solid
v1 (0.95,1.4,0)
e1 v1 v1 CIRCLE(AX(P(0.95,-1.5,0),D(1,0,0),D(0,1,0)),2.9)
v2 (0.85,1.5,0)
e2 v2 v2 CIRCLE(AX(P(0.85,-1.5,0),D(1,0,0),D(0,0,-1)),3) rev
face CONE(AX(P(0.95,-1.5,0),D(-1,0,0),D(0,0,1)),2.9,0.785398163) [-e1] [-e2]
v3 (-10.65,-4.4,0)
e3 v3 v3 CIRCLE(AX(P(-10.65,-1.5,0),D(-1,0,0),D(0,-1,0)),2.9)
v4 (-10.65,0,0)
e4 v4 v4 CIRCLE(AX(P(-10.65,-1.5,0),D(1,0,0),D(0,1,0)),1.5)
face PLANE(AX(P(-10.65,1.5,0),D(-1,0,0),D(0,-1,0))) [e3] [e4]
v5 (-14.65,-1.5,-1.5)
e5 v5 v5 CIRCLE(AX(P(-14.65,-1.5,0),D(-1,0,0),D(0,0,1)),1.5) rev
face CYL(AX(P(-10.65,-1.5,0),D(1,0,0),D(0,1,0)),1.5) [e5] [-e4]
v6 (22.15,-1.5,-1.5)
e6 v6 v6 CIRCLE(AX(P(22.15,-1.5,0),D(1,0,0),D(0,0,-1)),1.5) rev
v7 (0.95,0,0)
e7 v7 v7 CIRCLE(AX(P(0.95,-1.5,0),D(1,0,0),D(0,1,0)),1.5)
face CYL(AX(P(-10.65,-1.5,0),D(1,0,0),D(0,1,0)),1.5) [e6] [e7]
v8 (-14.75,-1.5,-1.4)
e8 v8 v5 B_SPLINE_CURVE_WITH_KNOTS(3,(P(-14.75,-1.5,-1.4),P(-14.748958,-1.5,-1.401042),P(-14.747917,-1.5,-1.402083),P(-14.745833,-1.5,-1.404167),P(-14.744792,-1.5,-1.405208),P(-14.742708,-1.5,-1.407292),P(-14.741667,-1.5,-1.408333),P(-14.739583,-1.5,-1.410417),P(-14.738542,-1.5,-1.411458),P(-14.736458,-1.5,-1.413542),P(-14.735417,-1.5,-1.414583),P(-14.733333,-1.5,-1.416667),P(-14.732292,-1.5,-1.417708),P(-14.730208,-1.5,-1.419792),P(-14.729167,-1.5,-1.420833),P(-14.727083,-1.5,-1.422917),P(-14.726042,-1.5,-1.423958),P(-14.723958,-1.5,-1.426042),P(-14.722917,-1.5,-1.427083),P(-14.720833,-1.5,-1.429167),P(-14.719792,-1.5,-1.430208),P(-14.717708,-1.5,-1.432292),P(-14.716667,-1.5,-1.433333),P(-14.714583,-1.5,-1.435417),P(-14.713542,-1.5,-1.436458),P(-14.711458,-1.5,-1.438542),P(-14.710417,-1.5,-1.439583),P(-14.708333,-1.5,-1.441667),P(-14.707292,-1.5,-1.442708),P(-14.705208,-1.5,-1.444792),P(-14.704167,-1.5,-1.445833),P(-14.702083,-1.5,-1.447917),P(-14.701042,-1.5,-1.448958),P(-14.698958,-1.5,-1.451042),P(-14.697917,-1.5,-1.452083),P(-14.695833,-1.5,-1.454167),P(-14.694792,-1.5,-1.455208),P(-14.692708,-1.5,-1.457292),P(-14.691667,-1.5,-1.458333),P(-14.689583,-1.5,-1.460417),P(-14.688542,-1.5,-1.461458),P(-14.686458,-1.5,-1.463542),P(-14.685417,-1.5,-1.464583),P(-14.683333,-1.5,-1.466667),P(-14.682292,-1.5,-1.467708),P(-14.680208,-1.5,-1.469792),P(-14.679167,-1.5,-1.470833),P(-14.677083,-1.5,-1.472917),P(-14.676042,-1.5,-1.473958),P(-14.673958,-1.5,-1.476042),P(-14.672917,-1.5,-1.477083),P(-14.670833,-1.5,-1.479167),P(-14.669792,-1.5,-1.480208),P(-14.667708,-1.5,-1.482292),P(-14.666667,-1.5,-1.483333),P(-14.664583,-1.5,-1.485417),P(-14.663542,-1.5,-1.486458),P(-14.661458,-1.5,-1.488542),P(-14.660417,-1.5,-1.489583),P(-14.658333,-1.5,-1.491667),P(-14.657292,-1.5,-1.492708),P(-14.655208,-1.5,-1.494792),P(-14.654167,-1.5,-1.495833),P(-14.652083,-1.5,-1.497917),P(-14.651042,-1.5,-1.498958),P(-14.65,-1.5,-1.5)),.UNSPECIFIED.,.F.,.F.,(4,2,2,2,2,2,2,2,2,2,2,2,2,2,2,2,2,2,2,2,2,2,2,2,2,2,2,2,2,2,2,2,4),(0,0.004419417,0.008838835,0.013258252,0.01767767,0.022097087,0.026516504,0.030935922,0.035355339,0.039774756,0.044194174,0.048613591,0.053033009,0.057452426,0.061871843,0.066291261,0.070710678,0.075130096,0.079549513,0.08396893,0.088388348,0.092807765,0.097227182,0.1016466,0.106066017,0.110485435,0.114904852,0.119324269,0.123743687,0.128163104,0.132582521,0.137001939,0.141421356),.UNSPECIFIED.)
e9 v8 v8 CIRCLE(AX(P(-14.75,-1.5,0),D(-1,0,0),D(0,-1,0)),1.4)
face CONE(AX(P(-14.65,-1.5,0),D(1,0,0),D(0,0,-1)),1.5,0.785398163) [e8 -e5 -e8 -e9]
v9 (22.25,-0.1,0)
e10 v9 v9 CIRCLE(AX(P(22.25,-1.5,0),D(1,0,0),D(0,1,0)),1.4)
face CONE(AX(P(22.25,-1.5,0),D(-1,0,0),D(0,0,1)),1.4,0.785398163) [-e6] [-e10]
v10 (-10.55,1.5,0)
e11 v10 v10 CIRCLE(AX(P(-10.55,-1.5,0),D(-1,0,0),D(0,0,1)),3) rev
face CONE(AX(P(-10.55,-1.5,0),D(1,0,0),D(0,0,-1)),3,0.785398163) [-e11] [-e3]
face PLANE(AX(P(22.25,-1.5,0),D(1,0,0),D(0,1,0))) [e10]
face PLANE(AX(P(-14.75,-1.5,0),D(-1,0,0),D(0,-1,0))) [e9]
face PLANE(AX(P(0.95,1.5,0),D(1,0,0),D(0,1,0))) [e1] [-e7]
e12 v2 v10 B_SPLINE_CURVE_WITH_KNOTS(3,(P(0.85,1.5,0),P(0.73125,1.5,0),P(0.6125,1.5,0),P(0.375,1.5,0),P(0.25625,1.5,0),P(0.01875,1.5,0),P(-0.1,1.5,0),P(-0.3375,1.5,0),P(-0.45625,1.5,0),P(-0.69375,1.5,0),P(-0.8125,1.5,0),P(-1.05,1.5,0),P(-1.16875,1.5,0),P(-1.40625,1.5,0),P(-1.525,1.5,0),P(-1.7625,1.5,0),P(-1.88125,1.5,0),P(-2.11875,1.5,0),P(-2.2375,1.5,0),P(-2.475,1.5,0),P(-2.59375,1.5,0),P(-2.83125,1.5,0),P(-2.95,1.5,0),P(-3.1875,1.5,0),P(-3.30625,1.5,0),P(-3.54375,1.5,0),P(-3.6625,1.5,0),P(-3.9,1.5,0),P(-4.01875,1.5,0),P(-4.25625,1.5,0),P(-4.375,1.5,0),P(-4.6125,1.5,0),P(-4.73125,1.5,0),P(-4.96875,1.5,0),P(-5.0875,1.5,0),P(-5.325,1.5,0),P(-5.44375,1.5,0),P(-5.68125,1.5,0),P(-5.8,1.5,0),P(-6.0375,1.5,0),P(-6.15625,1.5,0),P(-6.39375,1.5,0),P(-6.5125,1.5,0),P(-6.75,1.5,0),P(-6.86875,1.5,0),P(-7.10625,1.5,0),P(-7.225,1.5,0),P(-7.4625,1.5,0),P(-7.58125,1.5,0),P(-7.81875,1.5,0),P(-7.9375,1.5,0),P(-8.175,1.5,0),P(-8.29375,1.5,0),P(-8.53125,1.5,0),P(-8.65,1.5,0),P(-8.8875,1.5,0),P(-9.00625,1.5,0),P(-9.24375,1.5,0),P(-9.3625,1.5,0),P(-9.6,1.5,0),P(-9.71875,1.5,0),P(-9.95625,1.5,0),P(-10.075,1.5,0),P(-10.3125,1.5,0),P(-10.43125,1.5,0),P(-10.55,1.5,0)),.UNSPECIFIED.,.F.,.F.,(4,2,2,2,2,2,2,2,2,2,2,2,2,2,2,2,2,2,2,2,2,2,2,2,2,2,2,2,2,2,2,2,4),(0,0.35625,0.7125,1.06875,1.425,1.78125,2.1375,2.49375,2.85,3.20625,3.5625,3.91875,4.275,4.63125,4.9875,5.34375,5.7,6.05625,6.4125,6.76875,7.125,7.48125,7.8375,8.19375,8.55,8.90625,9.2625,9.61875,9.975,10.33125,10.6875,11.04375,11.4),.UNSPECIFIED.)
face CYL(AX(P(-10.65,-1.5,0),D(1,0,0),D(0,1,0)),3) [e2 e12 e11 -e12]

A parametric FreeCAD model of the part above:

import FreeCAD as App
import Part
import Sketcher
from FreeCAD import Vector
Q = App.Units.Quantity


def edges_at(feature, points):
    """Names of the edges that pass closest to the given points."""
    edges = feature.Shape.Edges
    near = lambda p: min(range(len(edges)), key=lambda i: edges[i].distToShape(Part.Vertex(*p))[0])
    return sorted({f"Edge{near(p) + 1}" for p in points})


def add_polygon(sketch, points):
    """Adds a closed chain of lines whose ends are joined by coincident constraints."""
    first, n = sketch.GeometryCount, len(points)
    for a, b in zip(points, points[1:] + points[:1]):
        sketch.addGeometry(Part.LineSegment(App.Vector(*a, 0), App.Vector(*b, 0)), False)
    for i in range(n):
        sketch.addConstraint(Sketcher.Constraint("Coincident", first + i, 2, first + (i + 1) % n, 1))

doc = App.newDocument("Part")
params = doc.addObject("Spreadsheet::Sheet", "Params")
for row, (alias, value) in enumerate([
    ("sketch1_width", "37 mm"),
    ("sketch1_width2", "11.6 mm"),
    ("sketch1_width3", "4.1 mm"),
    ("sketch1_height", "1.5 mm"),
    ("revolution_angle", "360 deg"),
    ("chamfer_size", "0.1 mm"),
    ("chamfer2_size", "0.1 mm"),
    ("chamfer3_size", "0.1 mm"),
    ("chamfer4_size", "0.1 mm"),
], start=1):
    params.set(f"A{row}", alias)
    params.set(f"B{row}", "=" + value)
    params.setAlias(f"B{row}", alias)

body = doc.addObject("PartDesign::Body", "Body")

# Sketch on XY plane
sketch1 = body.newObject("Sketcher::SketchObject", "Sketch")
sketch1.AttachmentSupport = (doc.getObject("XY_Plane"), [""])
sketch1.MapMode = "FlatFace"
add_polygon(sketch1, [(0.9, 1.5), (-10.7, 1.5), (-10.7, 0), (-14.8, 0), (-14.8, -1.5), (22.2, -1.5), (22.2, 0), (0.9, 0)])  # lines 0-7
sketch1.addGeometry(Part.LineSegment(Vector(22.2, -1.5, 0), Vector(-14.8, -1.5, 0)), True)  # axis
sketch1.addConstraint(Sketcher.Constraint("Horizontal", 0))
sketch1.addConstraint(Sketcher.Constraint("Vertical", 1))
sketch1.addConstraint(Sketcher.Constraint("Horizontal", 2))
sketch1.addConstraint(Sketcher.Constraint("Vertical", 3))
sketch1.addConstraint(Sketcher.Constraint("Horizontal", 4))
sketch1.addConstraint(Sketcher.Constraint("Vertical", 5))
sketch1.addConstraint(Sketcher.Constraint("Horizontal", 6))
sketch1.addConstraint(Sketcher.Constraint("Vertical", 7))
sketch1.addConstraint(Sketcher.Constraint("Horizontal", 8))
sketch1.addConstraint(Sketcher.Constraint("Coincident", 8, 1, 4, 2))
sketch1.addConstraint(Sketcher.Constraint("PointOnObject", 1, 2, -1))
sketch1.addConstraint(Sketcher.Constraint("PointOnObject", 5, 2, -1))
sketch1.addConstraint(Sketcher.Constraint("Vertical", 2, 2, 8, 2))
sketch1.addConstraint(Sketcher.Constraint("Equal", 1, 3))
sketch1.addConstraint(Sketcher.Constraint("DistanceX", 4, 1, 4, 2, Q("37 mm")))
sketch1.addConstraint(Sketcher.Constraint("DistanceX", 0, 2, 0, 1, Q("11.6 mm")))
sketch1.addConstraint(Sketcher.Constraint("DistanceX", 2, 2, 2, 1, Q("4.1 mm")))
sketch1.addConstraint(Sketcher.Constraint("DistanceY", 1, 2, 1, 1, Q("1.5 mm")))
sketch1.addConstraint(Sketcher.Constraint("DistanceX", 0, 2, -1, 1, Q("10.65 mm")))
sketch1.setExpression("Constraints[22]", "Params.sketch1_width")
sketch1.setExpression("Constraints[23]", "Params.sketch1_width2")
sketch1.setExpression("Constraints[24]", "Params.sketch1_width3")
sketch1.setExpression("Constraints[25]", "Params.sketch1_height")
revolution = body.newObject("PartDesign::Revolution", "Revolution")
revolution.Profile = sketch1
revolution.ReferenceAxis = (sketch1, ["Axis0"])
revolution.setExpression("Angle", "Params.revolution_angle")
doc.recompute()

chamfer = body.newObject("PartDesign::Chamfer", "Chamfer")
chamfer.Base = (revolution, edges_at(revolution, [(-14.75, -3, 0)]))
chamfer.setExpression("Size", "Params.chamfer_size")
doc.recompute()

chamfer2 = body.newObject("PartDesign::Chamfer", "Chamfer001")
chamfer2.Base = (chamfer, edges_at(chamfer, [(-10.65, -4.5, 0)]))
chamfer2.setExpression("Size", "Params.chamfer2_size")
doc.recompute()

chamfer3 = body.newObject("PartDesign::Chamfer", "Chamfer002")
chamfer3.Base = (chamfer2, edges_at(chamfer2, [(0.95, -4.5, 0)]))
chamfer3.setExpression("Size", "Params.chamfer3_size")
doc.recompute()

chamfer4 = body.newObject("PartDesign::Chamfer", "Chamfer003")
chamfer4.Base = (chamfer3, edges_at(chamfer3, [(22.25, -3, 0)]))
chamfer4.setExpression("Size", "Params.chamfer4_size")

doc.recompute()
